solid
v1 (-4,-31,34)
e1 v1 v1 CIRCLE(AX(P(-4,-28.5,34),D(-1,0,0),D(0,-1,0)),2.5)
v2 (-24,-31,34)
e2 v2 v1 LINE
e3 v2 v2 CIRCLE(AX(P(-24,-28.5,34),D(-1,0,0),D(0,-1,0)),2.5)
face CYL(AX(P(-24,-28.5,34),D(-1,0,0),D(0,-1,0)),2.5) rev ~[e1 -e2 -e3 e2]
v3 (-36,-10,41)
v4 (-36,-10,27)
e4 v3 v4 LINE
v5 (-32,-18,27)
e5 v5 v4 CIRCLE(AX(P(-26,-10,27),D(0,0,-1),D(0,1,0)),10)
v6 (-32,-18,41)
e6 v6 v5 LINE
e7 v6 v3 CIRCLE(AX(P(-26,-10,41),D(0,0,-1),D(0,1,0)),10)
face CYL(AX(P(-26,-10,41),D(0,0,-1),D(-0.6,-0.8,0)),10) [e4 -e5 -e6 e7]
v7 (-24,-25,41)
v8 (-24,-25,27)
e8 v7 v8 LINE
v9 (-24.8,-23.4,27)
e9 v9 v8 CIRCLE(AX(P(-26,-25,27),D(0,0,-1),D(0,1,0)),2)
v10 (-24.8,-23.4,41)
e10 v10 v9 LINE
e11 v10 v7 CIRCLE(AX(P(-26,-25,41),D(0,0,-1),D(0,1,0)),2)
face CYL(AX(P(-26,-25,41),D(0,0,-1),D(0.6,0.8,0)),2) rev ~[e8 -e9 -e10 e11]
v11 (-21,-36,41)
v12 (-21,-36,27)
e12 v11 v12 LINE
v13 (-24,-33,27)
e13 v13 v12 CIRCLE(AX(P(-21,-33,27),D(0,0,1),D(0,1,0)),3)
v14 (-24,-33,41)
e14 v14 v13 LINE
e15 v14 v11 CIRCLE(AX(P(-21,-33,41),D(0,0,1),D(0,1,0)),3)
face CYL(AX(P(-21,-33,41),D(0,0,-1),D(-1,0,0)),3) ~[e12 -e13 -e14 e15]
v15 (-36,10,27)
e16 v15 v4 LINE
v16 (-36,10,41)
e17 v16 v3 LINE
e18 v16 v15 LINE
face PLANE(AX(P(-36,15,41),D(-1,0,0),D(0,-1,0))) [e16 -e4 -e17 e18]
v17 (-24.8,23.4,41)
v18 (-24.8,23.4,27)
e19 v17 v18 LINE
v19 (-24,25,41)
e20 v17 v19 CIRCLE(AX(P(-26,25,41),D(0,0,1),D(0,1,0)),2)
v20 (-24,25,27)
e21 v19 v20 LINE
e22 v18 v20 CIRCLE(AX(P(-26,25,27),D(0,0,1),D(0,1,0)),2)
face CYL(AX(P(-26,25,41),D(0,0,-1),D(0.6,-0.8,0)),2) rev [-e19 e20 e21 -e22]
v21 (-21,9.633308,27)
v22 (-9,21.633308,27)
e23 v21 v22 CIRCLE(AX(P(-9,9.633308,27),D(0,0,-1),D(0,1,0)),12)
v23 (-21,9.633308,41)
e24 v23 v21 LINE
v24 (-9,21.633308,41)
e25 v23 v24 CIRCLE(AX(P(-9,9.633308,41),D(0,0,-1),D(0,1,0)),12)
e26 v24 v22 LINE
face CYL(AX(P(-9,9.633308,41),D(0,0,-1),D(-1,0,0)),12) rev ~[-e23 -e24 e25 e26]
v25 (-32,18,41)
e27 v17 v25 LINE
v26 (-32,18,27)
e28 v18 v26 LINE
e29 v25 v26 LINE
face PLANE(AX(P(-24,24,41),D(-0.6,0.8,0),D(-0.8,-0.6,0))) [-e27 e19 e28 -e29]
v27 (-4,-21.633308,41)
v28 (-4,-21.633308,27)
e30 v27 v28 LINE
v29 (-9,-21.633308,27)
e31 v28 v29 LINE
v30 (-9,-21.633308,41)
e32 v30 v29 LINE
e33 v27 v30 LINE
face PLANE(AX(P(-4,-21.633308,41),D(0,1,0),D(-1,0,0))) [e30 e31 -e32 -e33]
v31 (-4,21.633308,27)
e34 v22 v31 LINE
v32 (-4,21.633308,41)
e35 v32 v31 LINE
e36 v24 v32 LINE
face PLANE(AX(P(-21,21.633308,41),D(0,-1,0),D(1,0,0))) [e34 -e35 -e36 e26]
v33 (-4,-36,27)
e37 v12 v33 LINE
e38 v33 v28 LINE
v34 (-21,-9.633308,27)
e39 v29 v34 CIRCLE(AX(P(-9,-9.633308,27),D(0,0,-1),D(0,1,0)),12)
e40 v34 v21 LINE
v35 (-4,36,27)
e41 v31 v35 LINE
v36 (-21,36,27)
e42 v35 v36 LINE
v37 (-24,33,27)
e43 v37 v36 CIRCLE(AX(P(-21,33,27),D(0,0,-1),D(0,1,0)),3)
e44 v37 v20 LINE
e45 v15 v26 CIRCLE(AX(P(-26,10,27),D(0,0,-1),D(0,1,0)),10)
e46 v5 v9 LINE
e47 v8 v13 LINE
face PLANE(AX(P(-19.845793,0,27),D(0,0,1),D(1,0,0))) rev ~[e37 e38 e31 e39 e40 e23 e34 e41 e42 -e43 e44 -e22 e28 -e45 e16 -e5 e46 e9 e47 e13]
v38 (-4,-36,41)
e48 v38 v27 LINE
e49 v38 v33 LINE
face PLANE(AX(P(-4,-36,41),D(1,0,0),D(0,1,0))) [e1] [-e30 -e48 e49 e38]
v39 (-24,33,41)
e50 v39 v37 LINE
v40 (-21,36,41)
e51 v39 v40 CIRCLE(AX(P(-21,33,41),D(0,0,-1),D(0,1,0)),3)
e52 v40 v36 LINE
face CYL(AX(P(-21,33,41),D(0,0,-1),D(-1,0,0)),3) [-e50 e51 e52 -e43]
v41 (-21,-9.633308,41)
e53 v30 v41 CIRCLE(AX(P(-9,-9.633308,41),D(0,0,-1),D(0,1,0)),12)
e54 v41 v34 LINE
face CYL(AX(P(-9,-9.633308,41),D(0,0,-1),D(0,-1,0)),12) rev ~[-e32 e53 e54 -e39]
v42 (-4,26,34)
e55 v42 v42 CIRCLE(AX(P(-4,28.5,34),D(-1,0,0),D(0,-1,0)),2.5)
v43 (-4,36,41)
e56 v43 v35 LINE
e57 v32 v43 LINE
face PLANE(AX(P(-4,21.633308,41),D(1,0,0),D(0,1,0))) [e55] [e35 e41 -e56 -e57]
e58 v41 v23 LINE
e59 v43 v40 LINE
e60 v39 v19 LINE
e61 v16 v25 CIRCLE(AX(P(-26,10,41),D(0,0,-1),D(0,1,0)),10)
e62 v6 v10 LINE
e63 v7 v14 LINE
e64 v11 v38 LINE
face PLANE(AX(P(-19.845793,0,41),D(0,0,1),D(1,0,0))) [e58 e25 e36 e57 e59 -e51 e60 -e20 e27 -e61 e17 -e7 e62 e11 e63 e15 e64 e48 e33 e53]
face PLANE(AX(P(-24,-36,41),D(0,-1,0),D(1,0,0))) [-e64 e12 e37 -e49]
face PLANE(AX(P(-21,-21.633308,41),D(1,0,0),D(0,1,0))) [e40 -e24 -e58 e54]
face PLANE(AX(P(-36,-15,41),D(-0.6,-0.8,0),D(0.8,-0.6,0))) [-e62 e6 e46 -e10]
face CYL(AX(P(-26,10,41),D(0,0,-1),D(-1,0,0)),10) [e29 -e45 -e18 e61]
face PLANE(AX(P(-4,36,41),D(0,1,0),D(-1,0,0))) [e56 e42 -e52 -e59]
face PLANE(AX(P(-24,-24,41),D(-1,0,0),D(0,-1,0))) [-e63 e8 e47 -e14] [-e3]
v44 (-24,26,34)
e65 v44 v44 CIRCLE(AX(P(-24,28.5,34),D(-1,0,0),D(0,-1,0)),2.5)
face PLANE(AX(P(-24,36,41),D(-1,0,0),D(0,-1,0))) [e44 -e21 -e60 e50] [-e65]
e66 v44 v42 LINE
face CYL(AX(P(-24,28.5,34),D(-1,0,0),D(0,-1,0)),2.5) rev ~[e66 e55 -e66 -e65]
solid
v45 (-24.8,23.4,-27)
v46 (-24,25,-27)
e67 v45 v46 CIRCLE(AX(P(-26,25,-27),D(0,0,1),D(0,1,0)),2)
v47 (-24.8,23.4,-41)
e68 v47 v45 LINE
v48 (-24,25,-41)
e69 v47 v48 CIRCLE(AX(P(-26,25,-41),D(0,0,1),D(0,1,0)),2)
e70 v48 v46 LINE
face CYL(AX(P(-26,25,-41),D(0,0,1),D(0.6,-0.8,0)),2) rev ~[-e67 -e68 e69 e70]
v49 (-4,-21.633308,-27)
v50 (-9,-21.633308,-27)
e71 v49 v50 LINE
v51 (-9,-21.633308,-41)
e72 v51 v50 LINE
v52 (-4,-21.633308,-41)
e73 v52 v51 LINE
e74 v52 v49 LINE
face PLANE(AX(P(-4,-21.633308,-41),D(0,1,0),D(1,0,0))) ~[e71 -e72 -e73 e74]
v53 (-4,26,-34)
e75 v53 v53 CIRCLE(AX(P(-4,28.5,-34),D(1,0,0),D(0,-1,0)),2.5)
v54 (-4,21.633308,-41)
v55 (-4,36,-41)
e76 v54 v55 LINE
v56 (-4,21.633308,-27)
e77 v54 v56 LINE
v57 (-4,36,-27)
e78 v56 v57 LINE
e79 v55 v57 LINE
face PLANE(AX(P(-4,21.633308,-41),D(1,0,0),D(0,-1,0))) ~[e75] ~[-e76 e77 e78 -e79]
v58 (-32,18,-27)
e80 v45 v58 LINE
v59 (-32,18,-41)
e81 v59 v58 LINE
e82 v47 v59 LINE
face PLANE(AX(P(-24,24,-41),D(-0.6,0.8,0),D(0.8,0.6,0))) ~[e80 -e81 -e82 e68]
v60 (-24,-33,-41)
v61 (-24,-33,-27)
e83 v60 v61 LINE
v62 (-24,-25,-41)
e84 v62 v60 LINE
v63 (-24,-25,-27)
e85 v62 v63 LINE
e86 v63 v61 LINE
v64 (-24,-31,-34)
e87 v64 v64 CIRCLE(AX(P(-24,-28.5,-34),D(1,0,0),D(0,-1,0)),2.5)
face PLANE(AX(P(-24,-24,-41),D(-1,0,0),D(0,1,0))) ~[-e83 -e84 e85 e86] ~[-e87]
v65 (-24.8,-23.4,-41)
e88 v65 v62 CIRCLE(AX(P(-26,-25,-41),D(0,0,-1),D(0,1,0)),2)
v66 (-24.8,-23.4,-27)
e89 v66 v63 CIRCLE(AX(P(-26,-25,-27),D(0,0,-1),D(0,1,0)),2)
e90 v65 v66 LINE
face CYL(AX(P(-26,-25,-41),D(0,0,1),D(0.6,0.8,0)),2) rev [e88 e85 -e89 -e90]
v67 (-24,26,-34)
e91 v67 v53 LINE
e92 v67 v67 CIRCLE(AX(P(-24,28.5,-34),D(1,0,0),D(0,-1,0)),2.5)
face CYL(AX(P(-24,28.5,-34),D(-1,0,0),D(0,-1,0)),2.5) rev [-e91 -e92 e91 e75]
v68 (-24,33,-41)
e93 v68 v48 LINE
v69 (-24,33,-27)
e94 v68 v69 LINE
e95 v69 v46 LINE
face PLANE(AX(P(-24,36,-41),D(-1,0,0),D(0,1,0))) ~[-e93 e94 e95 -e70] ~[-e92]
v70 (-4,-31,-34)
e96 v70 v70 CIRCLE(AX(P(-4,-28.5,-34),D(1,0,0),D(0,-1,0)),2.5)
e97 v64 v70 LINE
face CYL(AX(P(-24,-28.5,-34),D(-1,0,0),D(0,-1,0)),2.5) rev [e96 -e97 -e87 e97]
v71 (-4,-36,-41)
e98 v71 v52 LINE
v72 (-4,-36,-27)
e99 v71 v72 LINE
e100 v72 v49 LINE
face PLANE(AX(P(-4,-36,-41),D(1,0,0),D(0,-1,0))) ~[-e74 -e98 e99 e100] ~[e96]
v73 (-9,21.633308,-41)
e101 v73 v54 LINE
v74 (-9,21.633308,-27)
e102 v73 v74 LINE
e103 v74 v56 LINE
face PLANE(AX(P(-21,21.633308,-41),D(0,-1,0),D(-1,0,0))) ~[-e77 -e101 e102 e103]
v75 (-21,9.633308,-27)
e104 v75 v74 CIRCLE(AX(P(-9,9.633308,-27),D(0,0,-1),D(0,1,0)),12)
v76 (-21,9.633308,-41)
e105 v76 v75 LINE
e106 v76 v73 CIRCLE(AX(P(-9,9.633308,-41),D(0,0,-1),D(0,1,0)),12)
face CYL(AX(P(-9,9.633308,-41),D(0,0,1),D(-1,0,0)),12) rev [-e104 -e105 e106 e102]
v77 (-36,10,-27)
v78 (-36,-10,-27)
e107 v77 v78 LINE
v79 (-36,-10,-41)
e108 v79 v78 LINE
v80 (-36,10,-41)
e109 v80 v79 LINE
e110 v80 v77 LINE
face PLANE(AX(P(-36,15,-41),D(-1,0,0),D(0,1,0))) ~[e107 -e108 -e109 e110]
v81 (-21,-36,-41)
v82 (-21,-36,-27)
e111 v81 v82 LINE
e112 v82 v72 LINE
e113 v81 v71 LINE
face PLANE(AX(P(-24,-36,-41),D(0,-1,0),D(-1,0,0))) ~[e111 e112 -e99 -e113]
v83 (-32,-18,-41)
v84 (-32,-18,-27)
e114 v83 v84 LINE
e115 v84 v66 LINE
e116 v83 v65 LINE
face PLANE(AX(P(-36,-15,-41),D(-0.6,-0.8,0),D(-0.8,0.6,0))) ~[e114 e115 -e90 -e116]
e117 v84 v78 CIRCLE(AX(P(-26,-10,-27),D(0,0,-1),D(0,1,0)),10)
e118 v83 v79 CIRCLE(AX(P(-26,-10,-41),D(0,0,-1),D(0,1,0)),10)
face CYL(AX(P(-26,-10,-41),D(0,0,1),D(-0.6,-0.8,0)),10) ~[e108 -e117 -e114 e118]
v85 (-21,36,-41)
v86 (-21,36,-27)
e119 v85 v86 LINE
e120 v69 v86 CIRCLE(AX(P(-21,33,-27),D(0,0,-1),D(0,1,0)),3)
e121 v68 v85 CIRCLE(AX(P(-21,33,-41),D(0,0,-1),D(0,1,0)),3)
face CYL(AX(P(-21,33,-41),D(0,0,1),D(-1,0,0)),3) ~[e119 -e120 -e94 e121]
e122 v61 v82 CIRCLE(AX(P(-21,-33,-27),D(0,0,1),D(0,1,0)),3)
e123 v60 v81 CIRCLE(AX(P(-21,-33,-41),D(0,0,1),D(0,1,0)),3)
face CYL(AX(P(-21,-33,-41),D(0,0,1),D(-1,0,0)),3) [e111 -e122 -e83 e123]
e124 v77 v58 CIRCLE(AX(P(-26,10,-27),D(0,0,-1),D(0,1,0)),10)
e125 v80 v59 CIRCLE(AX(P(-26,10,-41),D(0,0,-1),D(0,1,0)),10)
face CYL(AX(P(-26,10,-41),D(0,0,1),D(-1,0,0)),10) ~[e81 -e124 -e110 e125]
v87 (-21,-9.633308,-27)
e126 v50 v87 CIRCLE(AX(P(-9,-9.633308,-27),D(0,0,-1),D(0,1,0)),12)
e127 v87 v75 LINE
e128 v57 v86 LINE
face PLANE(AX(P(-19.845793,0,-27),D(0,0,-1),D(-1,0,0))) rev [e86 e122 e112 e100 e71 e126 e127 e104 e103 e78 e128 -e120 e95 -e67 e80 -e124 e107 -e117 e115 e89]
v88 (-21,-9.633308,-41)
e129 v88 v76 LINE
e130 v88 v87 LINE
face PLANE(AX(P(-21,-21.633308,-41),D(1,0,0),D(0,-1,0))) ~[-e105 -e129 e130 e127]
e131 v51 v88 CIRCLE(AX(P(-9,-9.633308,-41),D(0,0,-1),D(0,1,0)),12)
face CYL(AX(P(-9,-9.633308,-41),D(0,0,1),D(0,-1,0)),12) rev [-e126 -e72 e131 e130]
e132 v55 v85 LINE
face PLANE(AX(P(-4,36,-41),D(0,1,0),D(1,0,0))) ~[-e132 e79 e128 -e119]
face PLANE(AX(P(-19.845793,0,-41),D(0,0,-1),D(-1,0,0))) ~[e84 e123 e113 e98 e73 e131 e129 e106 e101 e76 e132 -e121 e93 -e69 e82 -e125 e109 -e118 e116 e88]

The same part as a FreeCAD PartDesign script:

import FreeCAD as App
import Part
import Sketcher


def edges_at(feature, points):
    """Names of the edges that pass closest to the given points."""
    edges = feature.Shape.Edges
    near = lambda p: min(range(len(edges)), key=lambda i: edges[i].distToShape(Part.Vertex(*p))[0])
    return sorted({f"Edge{near(p) + 1}" for p in points})


def add_polygon(sketch, points):
    """Adds a closed chain of lines whose ends are joined by coincident constraints."""
    first, n = sketch.GeometryCount, len(points)
    for a, b in zip(points, points[1:] + points[:1]):
        sketch.addGeometry(Part.LineSegment(App.Vector(*a, 0), App.Vector(*b, 0)), False)
    for i in range(n):
        sketch.addConstraint(Sketcher.Constraint("Coincident", first + i, 2, first + (i + 1) % n, 1))

doc = App.newDocument("Part")
body = doc.addObject("PartDesign::Body", "Body")

# Sketch on XY plane
sketch1 = body.newObject("Sketcher::SketchObject", "Sketch")
sketch1.AttachmentSupport = (doc.getObject("XY_Plane"), [""])
sketch1.MapMode = "FlatFace"
sketch1.AttachmentOffset = App.Placement(App.Vector(0, 0, 41), App.Rotation())
add_polygon(sketch1, [(-4, -36), (-4, -21.633308), (-21, -21.633308), (-21, 21.633308), (-4, 21.633308), (-4, 36), (-24, 36), (-24, 24), (-36, 15), (-36, -15), (-24, -24), (-24, -36)])  # lines 0-11
sketch1.addConstraint([
    Sketcher.Constraint("Vertical", 0),
    Sketcher.Constraint("Horizontal", 1),
    Sketcher.Constraint("Vertical", 2),
    Sketcher.Constraint("Horizontal", 3),
    Sketcher.Constraint("Vertical", 4),
    Sketcher.Constraint("Horizontal", 5),
    Sketcher.Constraint("Vertical", 6),
    Sketcher.Constraint("Vertical", 8),
    Sketcher.Constraint("Vertical", 10),
    Sketcher.Constraint("Horizontal", 11),
    Sketcher.Constraint("Symmetric", 0, 2, 3, 2, -1),
    Sketcher.Constraint("Symmetric", 6, 2, 9, 2, -1),
    Sketcher.Constraint("Equal", 0, 4),
    Sketcher.Constraint("Equal", 7, 9),
    Sketcher.Constraint("DistanceX", 1, 2, 1, 1, 17.0),
    Sketcher.Constraint("DistanceX", 5, 2, 5, 1, 20.0),
    Sketcher.Constraint("DistanceY", 6, 2, 6, 1, 12.0),
    Sketcher.Constraint("DistanceY", 8, 2, 8, 1, 30.0),
    Sketcher.Constraint("Distance", 7, 15.0),
    Sketcher.Constraint("DistanceX", 0, 2, -1, 1, 4.0),
    Sketcher.Constraint("DistanceY", -1, 1, 4, 2, 36.0),
    Sketcher.Constraint("DistanceY", 0, 1, 0, 2, 14.366692),
])
pad1 = body.newObject("PartDesign::Pad", "Pad")
pad1.Profile = sketch1
pad1.Length = 14
pad1.Reversed = True

# Sketch on YZ plane
sketch2 = body.newObject("Sketcher::SketchObject", "Sketch001")
sketch2.AttachmentSupport = (doc.getObject("YZ_Plane"), [""])
sketch2.MapMode = "FlatFace"
sketch2.AttachmentOffset = App.Placement(App.Vector(0, 0, -24), App.Rotation())
sketch2.addGeometry([
    Part.Circle(App.Vector(28.5, 34, 0), App.Vector(0, 0, 1), 2.5),
    Part.Circle(App.Vector(-28.5, 34, 0), App.Vector(0, 0, 1), 2.5),
], False)
sketch2.addConstraint([
    Sketcher.Constraint("Equal", 0, 1),
    Sketcher.Constraint("Symmetric", 0, 3, 1, 3, -2),
    Sketcher.Constraint("Diameter", 0, 5.0),
    Sketcher.Constraint("DistanceY", -1, 1, 0, 3, 34.0),
    Sketcher.Constraint("DistanceX", 1, 3, 0, 3, 57.0),
])
pocket1 = body.newObject("PartDesign::Pocket", "Pocket")
pocket1.Profile = sketch2
pocket1.Type = "ThroughAll"
pocket1.Reversed = True
doc.recompute()

fillet = body.newObject("PartDesign::Fillet", "Fillet")
fillet.Base = (pocket1, edges_at(pocket1, [(-21, -21.633, 34), (-21, 21.633, 34)]))
fillet.Radius = 12
doc.recompute()

fillet2 = body.newObject("PartDesign::Fillet", "Fillet001")
fillet2.Base = (fillet, edges_at(fillet, [(-36, -15, 34), (-36, 15, 34)]))
fillet2.Radius = 10
doc.recompute()

fillet3 = body.newObject("PartDesign::Fillet", "Fillet002")
fillet3.Base = (fillet2, edges_at(fillet2, [(-24, 24, 34), (-24, -24, 34)]))
fillet3.Radius = 2
doc.recompute()

fillet4 = body.newObject("PartDesign::Fillet", "Fillet003")
fillet4.Base = (fillet3, edges_at(fillet3, [(-24, 36, 34), (-24, -36, 34)]))
fillet4.Radius = 3
body2 = doc.addObject("PartDesign::Body", "Body001")
body2.AllowCompound = True
doc.recompute()

body2.BaseFeature = body
doc.recompute()

mirroring = doc.addObject("Part::Mirroring", "Mirroring")
mirroring.Source = body
mirroring.Base = App.Vector(0, 0, 0)
mirroring.Normal = App.Vector(0, 0, 1)
body3 = doc.addObject("PartDesign::Body", "Body002")
body3.BaseFeature = mirroring
boolean = body2.newObject("PartDesign::Boolean", "Boolean")
boolean.Type = "Fuse"
boolean.addObjects([body3])
doc.recompute()
mirroring.Visibility = False

doc.recompute()
